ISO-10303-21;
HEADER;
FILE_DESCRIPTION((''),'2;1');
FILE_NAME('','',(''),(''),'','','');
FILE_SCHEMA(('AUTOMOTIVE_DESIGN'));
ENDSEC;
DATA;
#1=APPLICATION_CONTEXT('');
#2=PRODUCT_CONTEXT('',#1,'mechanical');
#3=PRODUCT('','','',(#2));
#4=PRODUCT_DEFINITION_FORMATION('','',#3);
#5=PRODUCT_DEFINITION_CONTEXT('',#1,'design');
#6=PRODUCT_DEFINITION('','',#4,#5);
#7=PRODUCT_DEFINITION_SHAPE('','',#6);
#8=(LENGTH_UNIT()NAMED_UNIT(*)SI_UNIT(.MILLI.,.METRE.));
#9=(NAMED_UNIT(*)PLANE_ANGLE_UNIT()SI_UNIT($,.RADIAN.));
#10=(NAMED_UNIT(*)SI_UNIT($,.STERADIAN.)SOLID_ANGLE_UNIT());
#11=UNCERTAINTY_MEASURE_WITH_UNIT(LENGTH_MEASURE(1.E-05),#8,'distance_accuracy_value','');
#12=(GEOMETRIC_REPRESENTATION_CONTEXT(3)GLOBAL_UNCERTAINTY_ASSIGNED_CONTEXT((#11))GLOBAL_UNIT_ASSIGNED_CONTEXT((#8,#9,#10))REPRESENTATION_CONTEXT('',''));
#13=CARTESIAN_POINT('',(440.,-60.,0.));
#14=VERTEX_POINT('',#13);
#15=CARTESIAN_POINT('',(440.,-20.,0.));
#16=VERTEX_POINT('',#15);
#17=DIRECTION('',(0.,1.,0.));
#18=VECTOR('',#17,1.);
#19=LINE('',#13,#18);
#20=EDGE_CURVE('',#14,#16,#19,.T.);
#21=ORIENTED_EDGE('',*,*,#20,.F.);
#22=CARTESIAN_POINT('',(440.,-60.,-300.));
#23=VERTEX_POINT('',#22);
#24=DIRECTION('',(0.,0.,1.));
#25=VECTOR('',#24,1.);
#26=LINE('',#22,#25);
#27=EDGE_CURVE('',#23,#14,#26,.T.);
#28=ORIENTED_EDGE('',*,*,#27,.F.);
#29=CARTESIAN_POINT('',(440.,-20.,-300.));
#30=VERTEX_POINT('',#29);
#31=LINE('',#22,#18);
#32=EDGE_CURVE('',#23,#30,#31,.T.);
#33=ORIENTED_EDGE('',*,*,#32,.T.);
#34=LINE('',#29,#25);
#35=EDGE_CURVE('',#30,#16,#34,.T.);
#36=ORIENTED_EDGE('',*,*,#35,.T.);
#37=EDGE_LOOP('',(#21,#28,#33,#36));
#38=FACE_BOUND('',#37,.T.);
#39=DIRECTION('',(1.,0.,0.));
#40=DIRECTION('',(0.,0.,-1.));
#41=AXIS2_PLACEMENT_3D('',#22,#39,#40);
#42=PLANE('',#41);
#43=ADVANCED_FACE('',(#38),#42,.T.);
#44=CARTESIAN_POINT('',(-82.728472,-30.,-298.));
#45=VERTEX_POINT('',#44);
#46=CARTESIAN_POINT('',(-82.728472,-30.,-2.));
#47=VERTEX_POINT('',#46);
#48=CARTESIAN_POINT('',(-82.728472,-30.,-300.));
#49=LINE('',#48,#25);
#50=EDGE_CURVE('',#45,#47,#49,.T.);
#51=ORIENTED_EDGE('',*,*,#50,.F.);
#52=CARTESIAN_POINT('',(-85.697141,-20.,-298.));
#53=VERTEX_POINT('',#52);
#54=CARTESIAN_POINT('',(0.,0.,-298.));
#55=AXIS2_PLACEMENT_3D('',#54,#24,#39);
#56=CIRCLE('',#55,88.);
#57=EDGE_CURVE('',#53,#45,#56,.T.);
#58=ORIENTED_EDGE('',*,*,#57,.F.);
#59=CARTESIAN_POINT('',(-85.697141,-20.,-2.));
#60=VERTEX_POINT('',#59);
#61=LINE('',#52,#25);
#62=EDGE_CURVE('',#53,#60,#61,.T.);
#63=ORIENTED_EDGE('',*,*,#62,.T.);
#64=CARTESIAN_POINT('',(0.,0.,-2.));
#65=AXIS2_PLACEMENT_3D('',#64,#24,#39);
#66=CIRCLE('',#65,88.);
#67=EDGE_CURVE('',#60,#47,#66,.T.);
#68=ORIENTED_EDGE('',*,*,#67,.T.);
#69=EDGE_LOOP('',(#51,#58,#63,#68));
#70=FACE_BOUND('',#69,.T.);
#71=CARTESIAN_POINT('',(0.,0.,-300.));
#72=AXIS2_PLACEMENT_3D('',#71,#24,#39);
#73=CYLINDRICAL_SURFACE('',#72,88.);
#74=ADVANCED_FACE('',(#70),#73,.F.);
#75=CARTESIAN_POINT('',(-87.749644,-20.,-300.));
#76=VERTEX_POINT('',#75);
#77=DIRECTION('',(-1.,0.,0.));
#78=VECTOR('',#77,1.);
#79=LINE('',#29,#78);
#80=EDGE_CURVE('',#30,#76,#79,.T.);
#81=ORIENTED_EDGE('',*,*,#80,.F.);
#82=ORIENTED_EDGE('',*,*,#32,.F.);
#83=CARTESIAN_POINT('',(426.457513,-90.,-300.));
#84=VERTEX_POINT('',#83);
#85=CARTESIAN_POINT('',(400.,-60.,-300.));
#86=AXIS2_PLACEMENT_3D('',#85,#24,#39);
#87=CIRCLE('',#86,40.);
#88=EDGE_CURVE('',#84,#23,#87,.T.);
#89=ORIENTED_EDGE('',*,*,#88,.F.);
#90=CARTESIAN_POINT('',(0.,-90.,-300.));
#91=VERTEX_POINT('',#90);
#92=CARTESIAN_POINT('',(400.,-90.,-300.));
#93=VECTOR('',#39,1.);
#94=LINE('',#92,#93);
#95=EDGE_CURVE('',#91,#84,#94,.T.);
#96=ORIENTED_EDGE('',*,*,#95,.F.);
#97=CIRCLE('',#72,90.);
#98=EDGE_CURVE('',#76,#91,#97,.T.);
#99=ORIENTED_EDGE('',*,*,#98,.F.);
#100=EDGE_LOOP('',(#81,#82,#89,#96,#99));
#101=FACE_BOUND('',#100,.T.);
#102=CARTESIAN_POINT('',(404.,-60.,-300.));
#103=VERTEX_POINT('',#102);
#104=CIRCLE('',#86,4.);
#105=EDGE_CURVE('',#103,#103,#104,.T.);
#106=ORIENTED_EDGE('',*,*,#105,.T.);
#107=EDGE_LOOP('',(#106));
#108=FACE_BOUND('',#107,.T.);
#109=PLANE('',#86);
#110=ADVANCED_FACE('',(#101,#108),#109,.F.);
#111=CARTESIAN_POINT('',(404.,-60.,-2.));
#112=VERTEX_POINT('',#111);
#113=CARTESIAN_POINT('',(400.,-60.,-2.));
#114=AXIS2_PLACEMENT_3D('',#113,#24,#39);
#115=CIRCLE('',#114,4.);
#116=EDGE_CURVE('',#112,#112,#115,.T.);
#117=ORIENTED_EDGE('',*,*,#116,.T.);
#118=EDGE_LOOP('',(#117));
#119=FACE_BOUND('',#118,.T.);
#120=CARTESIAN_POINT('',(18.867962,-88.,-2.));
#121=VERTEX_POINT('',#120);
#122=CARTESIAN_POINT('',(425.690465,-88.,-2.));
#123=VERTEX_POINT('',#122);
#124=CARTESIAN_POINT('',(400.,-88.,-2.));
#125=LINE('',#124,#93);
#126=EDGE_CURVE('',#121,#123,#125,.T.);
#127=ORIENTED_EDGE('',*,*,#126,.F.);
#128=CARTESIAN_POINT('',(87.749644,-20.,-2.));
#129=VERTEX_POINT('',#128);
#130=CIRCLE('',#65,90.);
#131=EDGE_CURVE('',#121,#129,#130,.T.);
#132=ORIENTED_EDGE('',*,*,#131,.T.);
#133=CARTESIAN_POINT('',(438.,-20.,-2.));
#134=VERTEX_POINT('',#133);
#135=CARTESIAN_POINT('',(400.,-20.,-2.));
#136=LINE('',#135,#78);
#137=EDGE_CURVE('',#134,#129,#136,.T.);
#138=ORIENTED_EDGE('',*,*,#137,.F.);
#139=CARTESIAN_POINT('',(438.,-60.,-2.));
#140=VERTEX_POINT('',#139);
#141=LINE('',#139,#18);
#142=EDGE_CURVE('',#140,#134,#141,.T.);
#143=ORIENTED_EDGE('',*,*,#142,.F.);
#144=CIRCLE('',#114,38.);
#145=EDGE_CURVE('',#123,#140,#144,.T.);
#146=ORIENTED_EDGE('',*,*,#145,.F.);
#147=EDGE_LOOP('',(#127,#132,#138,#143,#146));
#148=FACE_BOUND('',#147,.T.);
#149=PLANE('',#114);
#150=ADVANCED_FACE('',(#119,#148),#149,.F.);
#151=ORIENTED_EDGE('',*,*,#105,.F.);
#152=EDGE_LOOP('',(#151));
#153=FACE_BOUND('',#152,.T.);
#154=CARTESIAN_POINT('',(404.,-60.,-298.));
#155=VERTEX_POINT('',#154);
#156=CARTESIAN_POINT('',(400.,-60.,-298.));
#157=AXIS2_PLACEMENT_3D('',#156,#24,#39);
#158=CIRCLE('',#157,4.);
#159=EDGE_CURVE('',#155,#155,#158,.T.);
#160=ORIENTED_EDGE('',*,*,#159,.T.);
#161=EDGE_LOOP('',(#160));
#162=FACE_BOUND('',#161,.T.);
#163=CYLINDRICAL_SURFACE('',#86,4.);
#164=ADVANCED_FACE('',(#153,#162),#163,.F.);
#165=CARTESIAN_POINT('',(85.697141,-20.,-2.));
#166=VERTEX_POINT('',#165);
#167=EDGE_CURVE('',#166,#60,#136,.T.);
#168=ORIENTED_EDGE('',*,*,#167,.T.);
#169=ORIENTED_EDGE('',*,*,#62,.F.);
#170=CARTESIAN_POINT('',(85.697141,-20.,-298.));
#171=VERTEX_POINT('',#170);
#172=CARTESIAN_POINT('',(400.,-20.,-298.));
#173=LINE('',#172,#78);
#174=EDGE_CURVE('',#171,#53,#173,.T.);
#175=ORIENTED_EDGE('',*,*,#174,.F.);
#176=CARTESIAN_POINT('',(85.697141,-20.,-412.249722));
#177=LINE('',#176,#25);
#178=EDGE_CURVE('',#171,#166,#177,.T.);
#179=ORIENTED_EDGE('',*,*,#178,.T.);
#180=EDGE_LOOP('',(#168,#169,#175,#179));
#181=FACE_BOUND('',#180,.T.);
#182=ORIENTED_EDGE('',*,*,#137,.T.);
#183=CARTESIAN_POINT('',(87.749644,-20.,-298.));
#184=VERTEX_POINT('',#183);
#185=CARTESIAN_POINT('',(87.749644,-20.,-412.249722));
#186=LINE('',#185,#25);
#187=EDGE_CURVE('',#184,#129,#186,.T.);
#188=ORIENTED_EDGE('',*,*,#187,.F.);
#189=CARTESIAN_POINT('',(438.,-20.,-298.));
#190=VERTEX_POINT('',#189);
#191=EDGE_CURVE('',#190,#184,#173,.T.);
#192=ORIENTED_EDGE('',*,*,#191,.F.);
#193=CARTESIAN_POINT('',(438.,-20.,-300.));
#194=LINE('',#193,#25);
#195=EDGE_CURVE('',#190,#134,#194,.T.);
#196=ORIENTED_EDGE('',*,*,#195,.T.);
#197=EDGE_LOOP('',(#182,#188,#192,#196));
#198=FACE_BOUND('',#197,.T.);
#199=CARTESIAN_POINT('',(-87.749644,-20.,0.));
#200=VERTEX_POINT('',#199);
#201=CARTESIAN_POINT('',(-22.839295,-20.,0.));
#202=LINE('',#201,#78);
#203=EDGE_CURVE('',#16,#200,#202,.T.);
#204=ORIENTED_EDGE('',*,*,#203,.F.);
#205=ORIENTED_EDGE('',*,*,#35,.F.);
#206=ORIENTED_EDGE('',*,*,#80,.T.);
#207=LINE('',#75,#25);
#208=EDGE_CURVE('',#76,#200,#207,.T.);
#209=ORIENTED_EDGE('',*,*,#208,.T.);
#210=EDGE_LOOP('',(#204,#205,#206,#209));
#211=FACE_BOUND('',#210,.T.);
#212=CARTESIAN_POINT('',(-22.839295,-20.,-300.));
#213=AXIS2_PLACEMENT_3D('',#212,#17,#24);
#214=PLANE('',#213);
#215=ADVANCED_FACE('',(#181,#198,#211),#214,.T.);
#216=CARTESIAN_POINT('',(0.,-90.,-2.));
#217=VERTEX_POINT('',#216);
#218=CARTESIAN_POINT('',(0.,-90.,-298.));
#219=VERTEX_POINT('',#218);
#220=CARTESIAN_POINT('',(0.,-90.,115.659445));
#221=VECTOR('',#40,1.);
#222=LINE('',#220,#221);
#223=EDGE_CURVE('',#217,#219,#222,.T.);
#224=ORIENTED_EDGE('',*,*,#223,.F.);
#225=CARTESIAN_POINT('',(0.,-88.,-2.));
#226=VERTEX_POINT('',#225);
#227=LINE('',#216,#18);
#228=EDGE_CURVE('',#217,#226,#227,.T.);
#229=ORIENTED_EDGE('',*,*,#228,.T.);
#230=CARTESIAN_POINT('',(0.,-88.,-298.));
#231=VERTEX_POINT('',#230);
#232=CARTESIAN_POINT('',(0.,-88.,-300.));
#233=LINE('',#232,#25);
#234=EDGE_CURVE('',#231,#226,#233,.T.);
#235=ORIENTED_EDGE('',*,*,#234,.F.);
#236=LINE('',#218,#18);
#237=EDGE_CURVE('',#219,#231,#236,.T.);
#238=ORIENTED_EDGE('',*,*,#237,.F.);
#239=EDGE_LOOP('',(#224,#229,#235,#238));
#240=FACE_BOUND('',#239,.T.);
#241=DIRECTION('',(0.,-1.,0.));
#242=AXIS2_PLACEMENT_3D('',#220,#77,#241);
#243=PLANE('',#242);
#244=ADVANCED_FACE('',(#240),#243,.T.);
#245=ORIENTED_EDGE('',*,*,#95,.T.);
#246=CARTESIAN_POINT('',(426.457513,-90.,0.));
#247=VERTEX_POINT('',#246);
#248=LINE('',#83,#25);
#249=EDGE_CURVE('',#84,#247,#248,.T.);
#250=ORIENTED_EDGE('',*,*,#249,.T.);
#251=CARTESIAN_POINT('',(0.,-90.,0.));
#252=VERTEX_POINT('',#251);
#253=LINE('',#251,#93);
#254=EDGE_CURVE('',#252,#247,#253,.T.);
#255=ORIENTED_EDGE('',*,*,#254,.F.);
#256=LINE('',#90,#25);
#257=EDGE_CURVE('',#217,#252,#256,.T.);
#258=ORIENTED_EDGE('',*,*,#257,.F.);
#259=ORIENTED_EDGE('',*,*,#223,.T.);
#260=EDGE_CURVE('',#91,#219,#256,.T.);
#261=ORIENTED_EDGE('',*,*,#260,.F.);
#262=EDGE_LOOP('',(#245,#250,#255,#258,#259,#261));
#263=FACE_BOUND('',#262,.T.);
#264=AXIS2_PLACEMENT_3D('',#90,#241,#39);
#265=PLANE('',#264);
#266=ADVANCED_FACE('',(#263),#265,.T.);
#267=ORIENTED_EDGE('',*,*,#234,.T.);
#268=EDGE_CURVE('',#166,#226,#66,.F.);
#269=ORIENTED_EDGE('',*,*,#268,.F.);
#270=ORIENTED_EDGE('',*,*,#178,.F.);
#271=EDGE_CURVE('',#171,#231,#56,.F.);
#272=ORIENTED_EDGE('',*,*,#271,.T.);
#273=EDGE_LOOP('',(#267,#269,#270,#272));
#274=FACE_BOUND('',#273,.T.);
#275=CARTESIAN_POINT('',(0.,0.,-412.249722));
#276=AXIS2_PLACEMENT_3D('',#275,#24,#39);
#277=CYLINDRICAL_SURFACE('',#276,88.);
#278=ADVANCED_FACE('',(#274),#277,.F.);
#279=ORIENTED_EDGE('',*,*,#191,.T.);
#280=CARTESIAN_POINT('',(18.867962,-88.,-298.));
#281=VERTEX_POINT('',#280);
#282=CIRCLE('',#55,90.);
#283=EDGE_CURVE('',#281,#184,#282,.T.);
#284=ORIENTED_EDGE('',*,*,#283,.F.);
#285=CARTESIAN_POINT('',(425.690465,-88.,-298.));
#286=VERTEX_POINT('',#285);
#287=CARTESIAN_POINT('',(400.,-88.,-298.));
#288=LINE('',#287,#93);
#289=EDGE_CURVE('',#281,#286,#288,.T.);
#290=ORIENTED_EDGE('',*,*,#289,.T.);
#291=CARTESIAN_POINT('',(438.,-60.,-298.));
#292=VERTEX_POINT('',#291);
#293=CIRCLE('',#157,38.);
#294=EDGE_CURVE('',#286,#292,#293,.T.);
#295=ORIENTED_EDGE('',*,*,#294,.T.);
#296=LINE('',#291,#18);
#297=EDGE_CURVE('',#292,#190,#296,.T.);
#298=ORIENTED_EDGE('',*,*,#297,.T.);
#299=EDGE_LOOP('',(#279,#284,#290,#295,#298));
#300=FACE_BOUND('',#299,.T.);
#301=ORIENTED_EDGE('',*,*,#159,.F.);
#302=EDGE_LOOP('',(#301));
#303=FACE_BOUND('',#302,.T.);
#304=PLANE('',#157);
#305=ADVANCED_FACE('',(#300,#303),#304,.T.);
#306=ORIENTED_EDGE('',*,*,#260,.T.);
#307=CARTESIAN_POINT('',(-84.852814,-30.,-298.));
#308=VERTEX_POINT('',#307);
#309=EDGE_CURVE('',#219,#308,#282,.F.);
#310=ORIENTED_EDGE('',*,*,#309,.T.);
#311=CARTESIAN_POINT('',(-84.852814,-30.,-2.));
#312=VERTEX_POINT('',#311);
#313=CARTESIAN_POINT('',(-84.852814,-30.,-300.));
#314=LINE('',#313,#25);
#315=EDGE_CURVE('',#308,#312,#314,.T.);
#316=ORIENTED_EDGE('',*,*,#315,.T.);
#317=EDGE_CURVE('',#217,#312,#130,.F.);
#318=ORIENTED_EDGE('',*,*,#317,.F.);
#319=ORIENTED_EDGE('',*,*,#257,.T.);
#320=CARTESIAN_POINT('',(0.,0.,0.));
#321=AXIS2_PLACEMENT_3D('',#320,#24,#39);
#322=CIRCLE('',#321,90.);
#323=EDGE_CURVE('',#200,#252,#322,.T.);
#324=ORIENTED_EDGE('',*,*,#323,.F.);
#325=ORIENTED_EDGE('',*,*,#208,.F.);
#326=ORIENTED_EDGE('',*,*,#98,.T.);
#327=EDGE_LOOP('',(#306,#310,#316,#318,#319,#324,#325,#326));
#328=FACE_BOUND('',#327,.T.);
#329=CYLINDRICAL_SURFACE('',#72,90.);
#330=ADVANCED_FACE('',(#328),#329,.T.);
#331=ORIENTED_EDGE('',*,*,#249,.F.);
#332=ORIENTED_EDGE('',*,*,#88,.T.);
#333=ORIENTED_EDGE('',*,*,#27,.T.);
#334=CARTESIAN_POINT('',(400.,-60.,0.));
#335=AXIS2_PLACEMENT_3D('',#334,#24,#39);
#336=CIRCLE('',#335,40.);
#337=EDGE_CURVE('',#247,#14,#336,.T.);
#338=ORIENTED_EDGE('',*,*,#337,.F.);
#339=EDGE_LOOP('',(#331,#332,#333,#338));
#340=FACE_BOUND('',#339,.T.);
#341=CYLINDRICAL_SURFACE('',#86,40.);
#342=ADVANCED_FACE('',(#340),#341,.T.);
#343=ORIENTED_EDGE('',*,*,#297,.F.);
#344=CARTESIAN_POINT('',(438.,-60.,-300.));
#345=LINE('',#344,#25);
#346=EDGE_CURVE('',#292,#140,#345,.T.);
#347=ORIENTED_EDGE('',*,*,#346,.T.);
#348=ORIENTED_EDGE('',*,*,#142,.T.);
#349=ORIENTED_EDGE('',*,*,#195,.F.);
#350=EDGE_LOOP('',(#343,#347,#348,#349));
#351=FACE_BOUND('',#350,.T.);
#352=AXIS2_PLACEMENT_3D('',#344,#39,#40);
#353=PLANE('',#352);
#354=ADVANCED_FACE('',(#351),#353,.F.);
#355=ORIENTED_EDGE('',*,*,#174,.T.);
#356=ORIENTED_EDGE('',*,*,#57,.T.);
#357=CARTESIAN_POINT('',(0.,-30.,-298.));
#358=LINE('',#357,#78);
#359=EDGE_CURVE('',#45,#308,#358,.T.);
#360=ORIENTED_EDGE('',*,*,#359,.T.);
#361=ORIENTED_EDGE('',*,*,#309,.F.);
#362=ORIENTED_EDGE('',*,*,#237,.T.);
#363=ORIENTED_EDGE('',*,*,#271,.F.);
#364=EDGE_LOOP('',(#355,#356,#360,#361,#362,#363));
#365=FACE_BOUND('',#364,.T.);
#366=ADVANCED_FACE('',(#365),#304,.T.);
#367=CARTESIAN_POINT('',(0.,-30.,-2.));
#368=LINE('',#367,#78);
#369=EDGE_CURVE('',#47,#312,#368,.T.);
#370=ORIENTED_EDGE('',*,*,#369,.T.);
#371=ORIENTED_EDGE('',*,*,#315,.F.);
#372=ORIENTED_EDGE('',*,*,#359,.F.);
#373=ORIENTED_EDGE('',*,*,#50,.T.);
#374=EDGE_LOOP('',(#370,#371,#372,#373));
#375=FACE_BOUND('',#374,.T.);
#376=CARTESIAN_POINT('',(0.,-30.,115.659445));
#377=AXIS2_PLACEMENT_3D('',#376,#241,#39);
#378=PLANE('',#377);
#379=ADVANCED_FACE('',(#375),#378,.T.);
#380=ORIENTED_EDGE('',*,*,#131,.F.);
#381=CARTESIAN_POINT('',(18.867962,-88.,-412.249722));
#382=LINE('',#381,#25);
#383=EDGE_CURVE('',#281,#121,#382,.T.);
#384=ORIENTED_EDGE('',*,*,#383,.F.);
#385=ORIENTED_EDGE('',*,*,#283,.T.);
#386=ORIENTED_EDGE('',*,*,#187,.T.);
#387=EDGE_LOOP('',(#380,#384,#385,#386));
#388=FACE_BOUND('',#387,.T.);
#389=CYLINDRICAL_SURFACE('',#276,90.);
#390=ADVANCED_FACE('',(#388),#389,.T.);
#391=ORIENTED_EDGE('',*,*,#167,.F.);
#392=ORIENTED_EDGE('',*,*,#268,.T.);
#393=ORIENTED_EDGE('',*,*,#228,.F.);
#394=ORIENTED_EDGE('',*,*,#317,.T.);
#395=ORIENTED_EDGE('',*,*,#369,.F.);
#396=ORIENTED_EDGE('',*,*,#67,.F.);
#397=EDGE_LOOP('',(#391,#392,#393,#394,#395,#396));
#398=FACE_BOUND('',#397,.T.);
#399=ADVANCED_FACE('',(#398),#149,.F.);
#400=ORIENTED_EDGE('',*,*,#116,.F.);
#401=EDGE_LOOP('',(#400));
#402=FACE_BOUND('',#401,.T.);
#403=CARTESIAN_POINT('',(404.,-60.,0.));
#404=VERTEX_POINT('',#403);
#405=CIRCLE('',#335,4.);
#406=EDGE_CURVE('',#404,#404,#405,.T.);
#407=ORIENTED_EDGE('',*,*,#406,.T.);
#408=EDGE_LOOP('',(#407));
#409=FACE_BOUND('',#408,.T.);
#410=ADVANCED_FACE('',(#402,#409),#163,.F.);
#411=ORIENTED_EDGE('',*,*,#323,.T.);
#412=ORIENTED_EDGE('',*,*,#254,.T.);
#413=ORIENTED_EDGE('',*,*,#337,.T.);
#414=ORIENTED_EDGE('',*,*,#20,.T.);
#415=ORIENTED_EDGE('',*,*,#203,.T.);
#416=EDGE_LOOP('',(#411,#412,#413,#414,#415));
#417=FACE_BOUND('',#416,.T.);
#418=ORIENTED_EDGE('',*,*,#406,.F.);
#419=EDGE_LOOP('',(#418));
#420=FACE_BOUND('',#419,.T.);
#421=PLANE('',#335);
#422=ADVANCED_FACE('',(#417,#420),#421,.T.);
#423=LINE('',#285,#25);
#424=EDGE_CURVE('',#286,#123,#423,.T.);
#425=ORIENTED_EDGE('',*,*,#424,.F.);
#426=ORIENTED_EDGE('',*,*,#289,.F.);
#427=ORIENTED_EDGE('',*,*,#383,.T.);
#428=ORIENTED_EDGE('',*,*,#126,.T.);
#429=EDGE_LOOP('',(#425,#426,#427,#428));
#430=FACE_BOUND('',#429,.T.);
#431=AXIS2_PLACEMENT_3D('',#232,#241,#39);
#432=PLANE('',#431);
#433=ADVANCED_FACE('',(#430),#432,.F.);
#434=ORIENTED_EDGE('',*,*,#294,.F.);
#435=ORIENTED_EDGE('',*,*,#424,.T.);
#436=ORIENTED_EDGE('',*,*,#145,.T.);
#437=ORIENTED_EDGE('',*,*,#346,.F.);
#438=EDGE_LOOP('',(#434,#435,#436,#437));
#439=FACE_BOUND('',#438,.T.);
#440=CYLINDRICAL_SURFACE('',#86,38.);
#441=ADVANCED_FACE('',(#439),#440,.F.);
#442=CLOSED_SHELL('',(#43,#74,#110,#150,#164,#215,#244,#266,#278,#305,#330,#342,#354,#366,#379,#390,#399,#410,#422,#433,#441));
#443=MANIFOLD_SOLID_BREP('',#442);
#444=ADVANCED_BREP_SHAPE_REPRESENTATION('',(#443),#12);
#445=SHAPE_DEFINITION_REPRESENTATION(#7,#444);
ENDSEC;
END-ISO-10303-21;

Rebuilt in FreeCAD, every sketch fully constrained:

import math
import FreeCAD as App
import Part
import Sketcher

V = App.Vector
Q = App.Units.Quantity


def faces_at(feature, points):
    """Names of the faces that lie closest to the given points."""
    faces = feature.Shape.Faces
    near = lambda p: min(range(len(faces)), key=lambda i: faces[i].distToShape(Part.Vertex(*p))[0])
    return sorted({f"Face{near(p) + 1}" for p in points})

doc = App.newDocument("Part")
body = doc.addObject("PartDesign::Body", "Body")

# Sketch on XY plane
sketch1 = doc.addObject("Sketcher::SketchObject", "Sketch")
body.addObject(sketch1)
sketch1.AttachmentSupport = (doc.XY_Plane, [""])
sketch1.MapMode = "FlatFace"
sketch1.addGeometry([
    Part.ArcOfCircle(Part.Circle(V(0, 0, 0), V(0, 0, 1), 90), math.radians(-167), math.radians(-90)),  # 0
    Part.LineSegment(V(0, -90, 0), V(426, -90, 0)),  # 1
    Part.ArcOfCircle(Part.Circle(V(400, -60, 0), V(0, 0, 1), 40), math.radians(-49), math.radians(0)),  # 2
    Part.LineSegment(V(440, -60, 0), V(440, -20, 0)),  # 3
    Part.LineSegment(V(440, -20, 0), V(-88, -20, 0)),  # 4
], False)
sketch1.addConstraint([
    Sketcher.Constraint("Tangent", 0, 2, 1, 1),
    Sketcher.Constraint("Coincident", 1, 2, 2, 1),
    Sketcher.Constraint("Tangent", 2, 2, 3, 1),
    Sketcher.Constraint("Coincident", 3, 2, 4, 1),
    Sketcher.Constraint("Coincident", 4, 2, 0, 1),
    Sketcher.Constraint("Horizontal", 1),
    Sketcher.Constraint("Vertical", 3),
    Sketcher.Constraint("Horizontal", 4),
    Sketcher.Constraint("Coincident", 0, 3, -1, 1),
    Sketcher.Constraint("Radius", 0, Q("90 mm")),
    Sketcher.Constraint("Radius", 2, Q("40 mm")),
    Sketcher.Constraint("DistanceY", 3, 1, 3, 2, Q("40 mm")),
    Sketcher.Constraint("DistanceX", -1, 1, 2, 3, Q("400 mm")),
    Sketcher.Constraint("DistanceY", 2, 3, -1, 1, Q("60 mm")),
])
pad1 = doc.addObject("PartDesign::Pad", "Pad")
body.addObject(pad1)
pad1.Profile = sketch1
pad1.Length = 300
pad1.Reversed = True
doc.recompute()

thickness = doc.addObject("PartDesign::Thickness", "Thickness")
body.addObject(thickness)
thickness.Base = (pad1, faces_at(pad1, [(176.125, -20, -150)]))
thickness.Value = 2
thickness.Reversed = True
thickness.Join = "Intersection"

# Sketch on XY plane
sketch2 = doc.addObject("Sketcher::SketchObject", "Sketch001")
body.addObject(sketch2)
sketch2.AttachmentSupport = (doc.XY_Plane, [""])
sketch2.MapMode = "FlatFace"
sketch2.AttachmentOffset = App.Placement(V(0, 0, -298), App.Rotation())
sketch2.addGeometry([
    Part.LineSegment(V(-101, -30, 0), V(-101, -90, 0)),
    Part.LineSegment(V(-101, -90, 0), V(0, -90, 0)),
    Part.LineSegment(V(0, -90, 0), V(0, -30, 0)),
    Part.LineSegment(V(0, -30, 0), V(-101, -30, 0)),
], False)
sketch2.addConstraint([
    Sketcher.Constraint("Coincident", 0, 2, 1, 1),
    Sketcher.Constraint("Coincident", 1, 2, 2, 1),
    Sketcher.Constraint("Coincident", 2, 2, 3, 1),
    Sketcher.Constraint("Coincident", 3, 2, 0, 1),
    Sketcher.Constraint("Vertical", 0),
    Sketcher.Constraint("Horizontal", 1),
    Sketcher.Constraint("Vertical", 2),
    Sketcher.Constraint("Horizontal", 3),
    Sketcher.Constraint("PointOnObject", 1, 2, -2),
    Sketcher.Constraint("DistanceY", 0, 2, 0, 1, Q("60 mm")),
    Sketcher.Constraint("DistanceY", 0, 2, -1, 1, Q("90 mm")),
    Sketcher.Constraint("DistanceX", 1, 1, 1, 2, Q("101.211388 mm")),
])
pocket1 = doc.addObject("PartDesign::Pocket", "Pocket")
body.addObject(pocket1)
pocket1.Profile = sketch2
pocket1.Length = 296
pocket1.Reversed = True

# Sketch on XY plane
sketch3 = doc.addObject("Sketcher::SketchObject", "Sketch002")
body.addObject(sketch3)
sketch3.AttachmentSupport = (doc.XY_Plane, [""])
sketch3.MapMode = "FlatFace"
sketch3.addGeometry([
    Part.LineSegment(V(87.7, -20, 0), V(85.7, -20, 0)),
    Part.ArcOfCircle(Part.Circle(V(0, 0, 0), V(0, 0, 1), 88), math.radians(-90), math.radians(-13)),
    Part.LineSegment(V(0, -88, 0), V(0, -90, 0)),
    Part.ArcOfCircle(Part.Circle(V(0, 0, 0), V(0, 0, 1), 90), math.radians(-90), math.radians(-13)),
], False)
sketch3.addConstraint([
    Sketcher.Constraint("Coincident", 0, 2, 1, 2),
    Sketcher.Constraint("Coincident", 1, 1, 2, 1),
    Sketcher.Constraint("Coincident", 2, 2, 3, 1),
    Sketcher.Constraint("Coincident", 3, 2, 0, 1),
    Sketcher.Constraint("Horizontal", 0),
    Sketcher.Constraint("Vertical", 2),
    Sketcher.Constraint("Coincident", 1, 3, -1, 1),
    Sketcher.Constraint("Coincident", 3, 3, -1, 1),
    Sketcher.Constraint("PointOnObject", 1, 1, -2),
    Sketcher.Constraint("Radius", 1, Q("88 mm")),
    Sketcher.Constraint("Radius", 3, Q("90 mm")),
    Sketcher.Constraint("DistanceY", 0, 2, -1, 1, Q("20 mm")),
])
pad2 = doc.addObject("PartDesign::Pad", "Pad001")
body.addObject(pad2)
pad2.Profile = sketch3
pad2.Length = 300
pad2.Reversed = True

# Sketch on XY plane
sketch4 = doc.addObject("Sketcher::SketchObject", "Sketch003")
body.addObject(sketch4)
sketch4.AttachmentSupport = (doc.XY_Plane, [""])
sketch4.MapMode = "FlatFace"
sketch4.addGeometry(Part.Circle(V(400, -60, 0), V(0, 0, 1), 4), False)
sketch4.addConstraint([
    Sketcher.Constraint("Diameter", 0, Q("8 mm")),
    Sketcher.Constraint("DistanceX", -1, 1, 0, 3, Q("400 mm")),
    Sketcher.Constraint("DistanceY", 0, 3, -1, 1, Q("60 mm")),
])
pocket2 = doc.addObject("PartDesign::Pocket", "Pocket001")
body.addObject(pocket2)
pocket2.Profile = sketch4
pocket2.Type = "ThroughAll"
pocket2.Midplane = True

doc.recompute()
